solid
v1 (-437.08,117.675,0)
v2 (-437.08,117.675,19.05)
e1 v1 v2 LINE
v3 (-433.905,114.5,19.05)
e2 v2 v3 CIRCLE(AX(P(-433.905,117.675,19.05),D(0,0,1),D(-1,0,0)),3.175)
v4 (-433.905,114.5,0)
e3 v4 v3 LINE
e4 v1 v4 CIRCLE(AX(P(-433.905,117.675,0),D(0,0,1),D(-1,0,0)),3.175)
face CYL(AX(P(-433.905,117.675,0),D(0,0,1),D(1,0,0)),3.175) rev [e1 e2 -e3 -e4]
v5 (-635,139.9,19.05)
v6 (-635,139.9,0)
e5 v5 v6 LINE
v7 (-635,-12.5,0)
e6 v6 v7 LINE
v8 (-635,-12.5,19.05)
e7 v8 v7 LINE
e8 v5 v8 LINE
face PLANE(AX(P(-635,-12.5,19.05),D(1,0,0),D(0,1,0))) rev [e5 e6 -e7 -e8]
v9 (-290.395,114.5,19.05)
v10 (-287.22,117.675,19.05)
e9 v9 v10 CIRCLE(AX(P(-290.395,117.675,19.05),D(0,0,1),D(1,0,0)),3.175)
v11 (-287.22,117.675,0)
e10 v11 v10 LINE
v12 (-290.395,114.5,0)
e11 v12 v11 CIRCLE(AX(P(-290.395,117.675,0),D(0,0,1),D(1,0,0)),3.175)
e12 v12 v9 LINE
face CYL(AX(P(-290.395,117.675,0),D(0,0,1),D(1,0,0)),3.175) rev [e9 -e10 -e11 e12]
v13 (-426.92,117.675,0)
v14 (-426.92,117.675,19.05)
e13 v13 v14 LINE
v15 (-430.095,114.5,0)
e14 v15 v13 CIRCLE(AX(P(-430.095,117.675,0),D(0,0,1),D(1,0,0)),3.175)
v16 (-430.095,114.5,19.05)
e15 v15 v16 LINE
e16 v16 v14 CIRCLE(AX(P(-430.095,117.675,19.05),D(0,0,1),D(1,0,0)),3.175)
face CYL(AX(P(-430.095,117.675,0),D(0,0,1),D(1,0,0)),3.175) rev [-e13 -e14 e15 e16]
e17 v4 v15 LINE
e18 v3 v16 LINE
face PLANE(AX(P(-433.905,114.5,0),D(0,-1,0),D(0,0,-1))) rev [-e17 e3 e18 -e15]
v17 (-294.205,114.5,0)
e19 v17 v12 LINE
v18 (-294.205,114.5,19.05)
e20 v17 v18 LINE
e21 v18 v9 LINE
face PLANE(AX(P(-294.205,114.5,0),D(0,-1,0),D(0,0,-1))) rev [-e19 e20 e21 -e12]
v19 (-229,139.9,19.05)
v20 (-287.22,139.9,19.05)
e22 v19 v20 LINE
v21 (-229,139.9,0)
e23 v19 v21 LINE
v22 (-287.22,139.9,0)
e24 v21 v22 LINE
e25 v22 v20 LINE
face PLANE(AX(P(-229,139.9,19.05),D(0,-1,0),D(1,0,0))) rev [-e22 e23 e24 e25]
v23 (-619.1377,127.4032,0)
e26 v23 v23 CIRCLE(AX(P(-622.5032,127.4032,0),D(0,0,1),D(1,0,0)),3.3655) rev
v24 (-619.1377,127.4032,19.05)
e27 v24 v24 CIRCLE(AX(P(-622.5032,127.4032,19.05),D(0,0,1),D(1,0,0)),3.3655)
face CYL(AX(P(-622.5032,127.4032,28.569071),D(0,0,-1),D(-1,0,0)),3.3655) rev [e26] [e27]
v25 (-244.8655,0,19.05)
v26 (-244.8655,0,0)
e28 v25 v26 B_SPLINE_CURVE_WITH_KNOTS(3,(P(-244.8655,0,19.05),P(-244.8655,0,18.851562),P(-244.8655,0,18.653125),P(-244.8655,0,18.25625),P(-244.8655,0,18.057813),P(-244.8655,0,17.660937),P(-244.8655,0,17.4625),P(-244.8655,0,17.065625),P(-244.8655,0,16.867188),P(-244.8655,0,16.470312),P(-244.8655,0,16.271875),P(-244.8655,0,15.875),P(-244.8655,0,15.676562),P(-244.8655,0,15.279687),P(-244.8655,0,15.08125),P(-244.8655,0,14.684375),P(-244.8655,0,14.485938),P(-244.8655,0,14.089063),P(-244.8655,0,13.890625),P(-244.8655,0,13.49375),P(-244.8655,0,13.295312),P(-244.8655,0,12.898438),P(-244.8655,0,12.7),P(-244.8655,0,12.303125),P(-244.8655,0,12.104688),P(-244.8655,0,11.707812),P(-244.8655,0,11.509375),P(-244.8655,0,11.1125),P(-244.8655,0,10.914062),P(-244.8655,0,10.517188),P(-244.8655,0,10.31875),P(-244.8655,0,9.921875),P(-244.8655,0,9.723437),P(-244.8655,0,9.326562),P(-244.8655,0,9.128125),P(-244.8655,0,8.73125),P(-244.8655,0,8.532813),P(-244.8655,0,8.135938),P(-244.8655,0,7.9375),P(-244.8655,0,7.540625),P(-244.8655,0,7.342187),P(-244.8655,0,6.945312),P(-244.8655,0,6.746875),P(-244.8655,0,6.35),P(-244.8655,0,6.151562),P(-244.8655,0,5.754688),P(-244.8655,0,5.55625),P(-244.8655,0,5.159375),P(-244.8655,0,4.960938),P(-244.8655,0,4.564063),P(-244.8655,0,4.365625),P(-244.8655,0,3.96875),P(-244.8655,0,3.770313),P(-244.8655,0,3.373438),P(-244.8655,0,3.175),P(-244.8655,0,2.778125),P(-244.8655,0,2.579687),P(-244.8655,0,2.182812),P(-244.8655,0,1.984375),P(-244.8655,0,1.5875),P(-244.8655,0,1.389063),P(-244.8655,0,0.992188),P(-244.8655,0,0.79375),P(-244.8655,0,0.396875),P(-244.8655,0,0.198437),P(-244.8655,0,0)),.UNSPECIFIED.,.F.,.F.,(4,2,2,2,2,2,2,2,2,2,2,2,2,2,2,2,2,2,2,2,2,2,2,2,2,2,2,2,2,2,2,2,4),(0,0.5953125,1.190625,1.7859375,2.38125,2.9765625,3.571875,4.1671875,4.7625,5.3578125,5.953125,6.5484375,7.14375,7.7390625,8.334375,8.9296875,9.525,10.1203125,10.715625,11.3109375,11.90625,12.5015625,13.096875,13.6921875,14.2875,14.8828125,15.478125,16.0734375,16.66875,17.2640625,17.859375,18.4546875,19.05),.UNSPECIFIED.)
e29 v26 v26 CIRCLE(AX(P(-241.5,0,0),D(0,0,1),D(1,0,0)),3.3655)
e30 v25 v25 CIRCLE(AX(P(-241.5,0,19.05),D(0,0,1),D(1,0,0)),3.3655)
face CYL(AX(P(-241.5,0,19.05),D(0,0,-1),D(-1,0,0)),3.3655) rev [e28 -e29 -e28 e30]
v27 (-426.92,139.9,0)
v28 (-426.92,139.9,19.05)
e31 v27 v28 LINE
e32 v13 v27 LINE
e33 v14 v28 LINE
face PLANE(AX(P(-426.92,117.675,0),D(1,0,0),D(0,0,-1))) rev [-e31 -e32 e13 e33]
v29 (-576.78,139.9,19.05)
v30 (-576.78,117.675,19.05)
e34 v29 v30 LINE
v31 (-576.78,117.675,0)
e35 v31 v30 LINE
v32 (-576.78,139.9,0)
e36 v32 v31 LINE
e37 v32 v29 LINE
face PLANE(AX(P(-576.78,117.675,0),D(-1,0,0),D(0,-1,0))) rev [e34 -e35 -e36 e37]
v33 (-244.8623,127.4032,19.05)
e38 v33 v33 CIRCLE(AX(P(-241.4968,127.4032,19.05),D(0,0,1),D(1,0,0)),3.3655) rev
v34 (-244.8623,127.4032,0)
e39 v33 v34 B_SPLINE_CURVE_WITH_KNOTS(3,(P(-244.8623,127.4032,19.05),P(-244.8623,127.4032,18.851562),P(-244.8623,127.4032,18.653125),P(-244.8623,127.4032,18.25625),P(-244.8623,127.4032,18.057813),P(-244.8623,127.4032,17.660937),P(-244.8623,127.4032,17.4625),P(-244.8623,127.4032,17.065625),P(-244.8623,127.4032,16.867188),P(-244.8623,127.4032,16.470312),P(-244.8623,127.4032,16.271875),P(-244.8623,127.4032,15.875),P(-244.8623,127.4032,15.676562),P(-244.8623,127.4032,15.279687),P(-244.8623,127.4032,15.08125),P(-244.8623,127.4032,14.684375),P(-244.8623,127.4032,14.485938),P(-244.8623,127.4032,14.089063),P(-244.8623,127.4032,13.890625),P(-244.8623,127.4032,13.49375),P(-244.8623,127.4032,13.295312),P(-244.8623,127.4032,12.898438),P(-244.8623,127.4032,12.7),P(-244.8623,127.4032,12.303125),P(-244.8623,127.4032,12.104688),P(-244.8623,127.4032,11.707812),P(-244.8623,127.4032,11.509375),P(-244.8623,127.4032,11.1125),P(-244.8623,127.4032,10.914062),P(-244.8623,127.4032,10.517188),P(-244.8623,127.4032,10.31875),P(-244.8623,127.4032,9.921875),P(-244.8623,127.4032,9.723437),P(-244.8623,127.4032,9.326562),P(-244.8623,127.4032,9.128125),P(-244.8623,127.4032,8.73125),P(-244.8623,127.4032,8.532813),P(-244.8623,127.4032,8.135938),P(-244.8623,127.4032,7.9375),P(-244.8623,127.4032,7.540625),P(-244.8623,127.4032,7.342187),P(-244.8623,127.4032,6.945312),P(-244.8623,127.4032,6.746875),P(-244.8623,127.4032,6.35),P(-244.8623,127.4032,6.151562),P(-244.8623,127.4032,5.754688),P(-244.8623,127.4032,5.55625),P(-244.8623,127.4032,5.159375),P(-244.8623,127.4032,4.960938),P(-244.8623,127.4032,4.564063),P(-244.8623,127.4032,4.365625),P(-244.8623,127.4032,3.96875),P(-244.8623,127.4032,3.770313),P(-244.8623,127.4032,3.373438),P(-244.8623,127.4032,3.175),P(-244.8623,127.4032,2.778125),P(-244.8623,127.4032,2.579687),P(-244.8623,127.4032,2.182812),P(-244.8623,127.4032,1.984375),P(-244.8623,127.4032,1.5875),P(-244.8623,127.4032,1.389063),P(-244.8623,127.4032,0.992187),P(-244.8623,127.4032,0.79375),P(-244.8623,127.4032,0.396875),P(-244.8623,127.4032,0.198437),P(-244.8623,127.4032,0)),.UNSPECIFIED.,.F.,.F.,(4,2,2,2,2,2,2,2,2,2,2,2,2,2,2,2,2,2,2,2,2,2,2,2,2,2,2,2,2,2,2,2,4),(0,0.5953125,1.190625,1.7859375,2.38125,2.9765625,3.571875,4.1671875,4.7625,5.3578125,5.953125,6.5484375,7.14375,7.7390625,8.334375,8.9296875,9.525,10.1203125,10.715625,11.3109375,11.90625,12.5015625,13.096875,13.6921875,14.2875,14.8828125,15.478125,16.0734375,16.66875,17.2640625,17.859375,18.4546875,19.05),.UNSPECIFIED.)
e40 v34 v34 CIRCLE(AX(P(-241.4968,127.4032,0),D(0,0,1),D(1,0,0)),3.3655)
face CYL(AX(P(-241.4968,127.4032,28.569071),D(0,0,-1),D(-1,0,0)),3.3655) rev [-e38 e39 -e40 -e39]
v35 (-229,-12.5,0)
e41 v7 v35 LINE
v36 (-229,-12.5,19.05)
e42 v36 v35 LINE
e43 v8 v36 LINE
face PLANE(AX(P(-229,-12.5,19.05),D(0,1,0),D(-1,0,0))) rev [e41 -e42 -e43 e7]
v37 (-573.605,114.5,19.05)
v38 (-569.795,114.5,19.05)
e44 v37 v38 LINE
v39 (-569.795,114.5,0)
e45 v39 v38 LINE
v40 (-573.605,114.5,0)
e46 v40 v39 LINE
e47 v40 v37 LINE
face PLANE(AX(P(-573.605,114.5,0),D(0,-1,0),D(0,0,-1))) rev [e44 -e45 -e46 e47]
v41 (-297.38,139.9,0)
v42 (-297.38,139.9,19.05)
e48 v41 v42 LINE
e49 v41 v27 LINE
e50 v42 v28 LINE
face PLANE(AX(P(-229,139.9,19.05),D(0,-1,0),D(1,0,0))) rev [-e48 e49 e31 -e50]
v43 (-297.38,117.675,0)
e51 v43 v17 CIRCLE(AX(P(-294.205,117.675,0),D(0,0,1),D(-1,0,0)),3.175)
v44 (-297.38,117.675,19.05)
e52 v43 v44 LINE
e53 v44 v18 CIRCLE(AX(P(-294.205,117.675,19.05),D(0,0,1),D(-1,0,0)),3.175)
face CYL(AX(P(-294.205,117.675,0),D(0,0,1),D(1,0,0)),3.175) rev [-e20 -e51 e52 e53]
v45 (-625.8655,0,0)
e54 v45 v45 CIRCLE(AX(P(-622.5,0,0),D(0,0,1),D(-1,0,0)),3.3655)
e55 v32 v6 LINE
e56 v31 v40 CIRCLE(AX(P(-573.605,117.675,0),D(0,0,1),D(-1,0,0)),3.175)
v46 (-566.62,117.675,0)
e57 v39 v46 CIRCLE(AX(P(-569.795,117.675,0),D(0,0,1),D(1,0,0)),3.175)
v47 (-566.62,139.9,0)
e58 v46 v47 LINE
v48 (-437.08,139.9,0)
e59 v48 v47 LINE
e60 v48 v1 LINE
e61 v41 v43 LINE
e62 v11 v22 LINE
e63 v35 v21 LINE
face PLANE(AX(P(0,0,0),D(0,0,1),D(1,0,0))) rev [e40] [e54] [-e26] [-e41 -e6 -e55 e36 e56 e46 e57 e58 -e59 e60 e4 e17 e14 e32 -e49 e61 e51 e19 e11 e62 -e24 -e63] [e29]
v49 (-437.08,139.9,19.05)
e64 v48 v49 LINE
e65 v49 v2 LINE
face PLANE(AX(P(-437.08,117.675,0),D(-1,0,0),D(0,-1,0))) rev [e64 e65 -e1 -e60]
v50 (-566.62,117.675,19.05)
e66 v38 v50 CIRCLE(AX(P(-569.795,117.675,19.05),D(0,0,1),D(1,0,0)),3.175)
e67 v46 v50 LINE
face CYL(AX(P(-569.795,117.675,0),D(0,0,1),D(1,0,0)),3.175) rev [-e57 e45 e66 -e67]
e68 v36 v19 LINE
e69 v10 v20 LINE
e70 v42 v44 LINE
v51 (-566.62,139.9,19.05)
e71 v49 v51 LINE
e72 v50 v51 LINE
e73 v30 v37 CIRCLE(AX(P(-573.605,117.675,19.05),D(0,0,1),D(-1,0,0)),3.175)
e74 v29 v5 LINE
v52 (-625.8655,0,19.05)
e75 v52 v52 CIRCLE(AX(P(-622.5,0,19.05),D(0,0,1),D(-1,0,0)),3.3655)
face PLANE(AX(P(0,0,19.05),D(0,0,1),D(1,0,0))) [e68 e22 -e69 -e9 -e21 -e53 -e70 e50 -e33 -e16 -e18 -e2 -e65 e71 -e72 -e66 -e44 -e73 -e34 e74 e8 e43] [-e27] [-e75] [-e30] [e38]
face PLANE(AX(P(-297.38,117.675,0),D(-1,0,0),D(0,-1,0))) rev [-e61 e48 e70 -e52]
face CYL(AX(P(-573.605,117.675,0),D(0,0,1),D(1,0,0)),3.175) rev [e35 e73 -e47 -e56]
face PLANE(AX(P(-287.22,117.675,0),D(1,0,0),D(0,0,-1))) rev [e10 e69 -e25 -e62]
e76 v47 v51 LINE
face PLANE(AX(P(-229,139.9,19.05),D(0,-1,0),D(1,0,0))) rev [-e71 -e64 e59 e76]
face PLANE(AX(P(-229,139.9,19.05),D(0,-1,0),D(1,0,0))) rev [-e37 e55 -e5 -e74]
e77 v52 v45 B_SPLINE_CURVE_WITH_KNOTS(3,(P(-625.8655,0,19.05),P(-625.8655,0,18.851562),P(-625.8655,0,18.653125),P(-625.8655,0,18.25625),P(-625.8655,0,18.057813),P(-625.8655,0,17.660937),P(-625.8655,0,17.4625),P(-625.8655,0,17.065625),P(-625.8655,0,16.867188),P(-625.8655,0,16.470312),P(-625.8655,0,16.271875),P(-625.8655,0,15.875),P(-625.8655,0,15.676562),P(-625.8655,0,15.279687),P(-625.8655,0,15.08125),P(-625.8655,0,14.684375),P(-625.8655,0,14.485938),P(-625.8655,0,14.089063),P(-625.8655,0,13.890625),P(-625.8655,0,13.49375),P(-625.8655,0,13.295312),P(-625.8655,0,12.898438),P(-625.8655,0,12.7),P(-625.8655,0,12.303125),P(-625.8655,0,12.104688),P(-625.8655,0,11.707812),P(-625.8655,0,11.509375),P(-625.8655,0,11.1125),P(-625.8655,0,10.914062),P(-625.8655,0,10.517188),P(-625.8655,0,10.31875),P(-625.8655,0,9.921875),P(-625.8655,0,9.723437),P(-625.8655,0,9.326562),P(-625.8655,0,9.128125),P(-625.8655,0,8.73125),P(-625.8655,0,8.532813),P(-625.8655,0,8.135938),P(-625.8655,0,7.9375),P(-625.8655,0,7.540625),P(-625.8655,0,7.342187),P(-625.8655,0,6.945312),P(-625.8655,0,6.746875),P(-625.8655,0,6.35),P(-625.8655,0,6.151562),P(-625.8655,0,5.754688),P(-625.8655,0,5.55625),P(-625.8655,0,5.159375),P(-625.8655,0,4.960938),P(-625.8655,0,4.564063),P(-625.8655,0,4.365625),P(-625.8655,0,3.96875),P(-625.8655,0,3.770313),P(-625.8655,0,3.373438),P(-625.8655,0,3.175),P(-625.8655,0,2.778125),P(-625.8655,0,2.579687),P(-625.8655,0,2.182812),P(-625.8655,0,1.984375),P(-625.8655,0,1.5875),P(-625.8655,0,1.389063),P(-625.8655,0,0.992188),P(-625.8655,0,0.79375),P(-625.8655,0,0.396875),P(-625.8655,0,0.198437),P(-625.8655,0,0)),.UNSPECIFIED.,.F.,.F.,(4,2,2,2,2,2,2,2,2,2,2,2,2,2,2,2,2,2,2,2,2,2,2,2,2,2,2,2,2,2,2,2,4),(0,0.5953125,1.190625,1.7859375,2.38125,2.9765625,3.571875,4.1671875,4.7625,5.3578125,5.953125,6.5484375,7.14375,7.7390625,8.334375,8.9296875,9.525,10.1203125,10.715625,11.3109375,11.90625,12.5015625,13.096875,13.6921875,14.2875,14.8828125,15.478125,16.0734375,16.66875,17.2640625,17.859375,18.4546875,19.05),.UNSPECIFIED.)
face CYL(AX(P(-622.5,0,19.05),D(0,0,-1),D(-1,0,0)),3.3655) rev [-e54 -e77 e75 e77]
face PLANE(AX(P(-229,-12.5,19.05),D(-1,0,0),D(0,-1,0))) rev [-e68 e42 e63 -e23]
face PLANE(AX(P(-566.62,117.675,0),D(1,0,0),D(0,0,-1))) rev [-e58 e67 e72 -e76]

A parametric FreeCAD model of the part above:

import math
import FreeCAD as App
import Part
import Sketcher

V = App.Vector
Q = App.Units.Quantity

doc = App.newDocument("Part")
body = doc.addObject("PartDesign::Body", "Body")

sketch1 = body.newObject("Sketcher::SketchObject", "Sketch")
sketch1.AttachmentSupport = (doc.getObject("XY_Plane"), [""])
sketch1.MapMode = "FlatFace"
sketch1.addGeometry([
    Part.LineSegment(V(-635, 139.9, 0), V(-635, -12.5, 0)),
    Part.LineSegment(V(-635, -12.5, 0), V(-229, -12.5, 0)),
    Part.LineSegment(V(-229, -12.5, 0), V(-229, 139.9, 0)),
    Part.LineSegment(V(-229, 139.9, 0), V(-635, 139.9, 0)),
    Part.Circle(V(-622.5, 0, 0), V(0, 0, 1), 3.4),
    Part.Circle(V(-241.5, 0, 0), V(0, 0, 1), 3.4),
], False)
sketch1.addConstraint([
    Sketcher.Constraint("Coincident", 0, 2, 1, 1),
    Sketcher.Constraint("Coincident", 1, 2, 2, 1),
    Sketcher.Constraint("Coincident", 2, 2, 3, 1),
    Sketcher.Constraint("Coincident", 3, 2, 0, 1),
    Sketcher.Constraint("Vertical", 0),
    Sketcher.Constraint("Horizontal", 1),
    Sketcher.Constraint("Vertical", 2),
    Sketcher.Constraint("Horizontal", 3),
    Sketcher.Constraint("Equal", 4, 5),
    Sketcher.Constraint("PointOnObject", 4, 3, -1),
    Sketcher.Constraint("PointOnObject", 5, 3, -1),
    Sketcher.Constraint("DistanceY", 0, 2, 0, 1, Q("6 in")),
    Sketcher.Constraint("Diameter", 4, Q("0.265 in")),
    Sketcher.Constraint("DistanceX", 0, 2, -1, 1, Q("25 in")),
    Sketcher.Constraint("DistanceX", 4, 3, 5, 3, Q("15 in")),
    Sketcher.Constraint("DistanceX", 1, 1, 1, 2, 406.0),
    Sketcher.Constraint("DistanceX", 4, 3, -1, 1, 622.5),
    Sketcher.Constraint("DistanceY", 0, 2, -1, 1, 12.5),
])
pad1 = body.newObject("PartDesign::Pad", "Pad")
pad1.Profile = sketch1
pad1.Length = Q("0.75 in")

sketch2 = body.newObject("Sketcher::SketchObject", "Sketch001")
sketch2.AttachmentSupport = (doc.getObject("XY_Plane"), [""])
sketch2.MapMode = "FlatFace"
sketch2.AttachmentOffset = App.Placement(V(0, 0, -0.08 * 25.4), App.Rotation())
sketch2.addGeometry(Part.Circle(V(-241.5, 127.4, 0), V(0, 0, 1), 3.4), False)
sketch2.addConstraint([
    Sketcher.Constraint("Diameter", 0, Q("0.265 in")),
    Sketcher.Constraint("DistanceX", 0, 3, -1, 1, 241.4968),
    Sketcher.Constraint("DistanceY", -1, 1, 0, 3, 127.4032),
])
pocket1 = body.newObject("PartDesign::Pocket", "Pocket")
pocket1.Profile = sketch2
pocket1.Length = Q("0.83 in")
pocket1.Reversed = True
doc.recompute()

datumplane = body.newObject("PartDesign::Plane", "DatumPlane")
datumplane.AttachmentSupport = (doc.getObject("YZ_Plane"), [""])
datumplane.MapMode = "FlatFace"
datumplane.AttachmentOffset = App.Placement(V(0, 0, -432), App.Rotation())
mirrored = body.newObject("PartDesign::Mirrored", "Mirrored")
mirrored.Originals = [pocket1]
mirrored.MirrorPlane = (datumplane, [""])
body.Tip = mirrored

sketch3 = body.newObject("Sketcher::SketchObject", "Sketch002")
sketch3.AttachmentSupport = (doc.getObject("XY_Plane"), [""])
sketch3.MapMode = "FlatFace"
sketch3.AttachmentOffset = App.Placement(V(0, 0, 0.75 * 25.4), App.Rotation())
sketch3.addGeometry([
    Part.LineSegment(V(-433.9, 114.5, 0), V(-430.1, 114.5, 0)),
    Part.ArcOfCircle(Part.Circle(V(-430.1, 117.7, 0), V(0, 0, 1), 3.2), math.radians(-90), math.radians(0)),
    Part.LineSegment(V(-426.9, 117.7, 0), V(-426.9, 139.9, 0)),
    Part.LineSegment(V(-426.9, 139.9, 0), V(-437.1, 139.9, 0)),
    Part.LineSegment(V(-437.1, 139.9, 0), V(-437.1, 117.7, 0)),
    Part.ArcOfCircle(Part.Circle(V(-433.9, 117.7, 0), V(0, 0, 1), 3.2), math.radians(-180), math.radians(-90)),
], False)
sketch3.addConstraint([
    Sketcher.Constraint("Tangent", 0, 2, 1, 1),
    Sketcher.Constraint("Tangent", 1, 2, 2, 1),
    Sketcher.Constraint("Coincident", 2, 2, 3, 1),
    Sketcher.Constraint("Coincident", 3, 2, 4, 1),
    Sketcher.Constraint("Tangent", 4, 2, 5, 1),
    Sketcher.Constraint("Tangent", 5, 2, 0, 1),
    Sketcher.Constraint("Horizontal", 0),
    Sketcher.Constraint("Vertical", 2),
    Sketcher.Constraint("Horizontal", 3),
    Sketcher.Constraint("Vertical", 4),
    Sketcher.Constraint("Equal", 1, 5),
    Sketcher.Constraint("DistanceX", 3, 2, 3, 1, Q("0.4 in")),
    Sketcher.Constraint("Radius", 1, Q("0.125 in")),
    Sketcher.Constraint("DistanceY", 0, 2, 2, 2, Q("1 in")),
    Sketcher.Constraint("DistanceX", 1, 3, -1, 1, 430.095),
    Sketcher.Constraint("DistanceY", -1, 1, 1, 3, 117.675),
])
pocket2 = body.newObject("PartDesign::Pocket", "Pocket001")
pocket2.Profile = sketch3
pocket2.Type = "ThroughAll"
doc.recompute()

linearpattern = body.newObject("PartDesign::LinearPattern", "LinearPattern")
linearpattern.Originals = [pocket2]
linearpattern.Direction = (doc.getObject("X_Axis"), [""])
linearpattern.Mode = "offset"
linearpattern.Offset = Q("5.5 in")
linearpattern.Occurrences = 2
body.Tip = linearpattern
doc.recompute()

linearpattern2 = body.newObject("PartDesign::LinearPattern", "LinearPattern001")
linearpattern2.Originals = [pocket2]
linearpattern2.Direction = (doc.getObject("X_Axis"), [""])
linearpattern2.Mode = "offset"
linearpattern2.Offset = Q("5.5 in")
linearpattern2.Occurrences = 2
linearpattern2.Reversed = True
body.Tip = linearpattern2

doc.recompute()
